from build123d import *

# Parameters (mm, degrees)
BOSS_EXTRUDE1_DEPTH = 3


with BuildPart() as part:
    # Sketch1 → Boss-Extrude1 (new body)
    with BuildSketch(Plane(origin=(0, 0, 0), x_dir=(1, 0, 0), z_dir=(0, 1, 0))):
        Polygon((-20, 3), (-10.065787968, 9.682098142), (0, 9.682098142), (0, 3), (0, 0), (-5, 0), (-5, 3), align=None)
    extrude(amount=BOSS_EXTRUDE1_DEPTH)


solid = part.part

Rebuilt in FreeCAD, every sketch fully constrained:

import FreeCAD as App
import Part
import Sketcher
from FreeCAD import Vector


def add_polygon(sketch, points):
    """Adds a closed chain of lines whose ends are joined by coincident constraints."""
    first, n = sketch.GeometryCount, len(points)
    for a, b in zip(points, points[1:] + points[:1]):
        sketch.addGeometry(Part.LineSegment(App.Vector(*a, 0), App.Vector(*b, 0)), False)
    for i in range(n):
        sketch.addConstraint(Sketcher.Constraint("Coincident", first + i, 2, first + (i + 1) % n, 1))

doc = App.newDocument("Part")
body = doc.addObject("PartDesign::Body", "Body")

# Sketch on XZ plane
sketch1 = doc.addObject("Sketcher::SketchObject", "Sketch")
body.addObject(sketch1)
sketch1.AttachmentSupport = (doc.XZ_Plane, [""])
sketch1.MapMode = "FlatFace"
add_polygon(sketch1, [(-10.065788, -9.682098), (-20, -3), (-5, -3), (-5, 0), (0, 0), (0, -9.682098)])  # lines 0-5
sketch1.addConstraint(Sketcher.Constraint("Horizontal", 1))
sketch1.addConstraint(Sketcher.Constraint("Vertical", 2))
sketch1.addConstraint(Sketcher.Constraint("Horizontal", 3))
sketch1.addConstraint(Sketcher.Constraint("Vertical", 4))
sketch1.addConstraint(Sketcher.Constraint("Horizontal", 5))
sketch1.addConstraint(Sketcher.Constraint("Coincident", 3, 2, -1, 1))
sketch1.addConstraint(Sketcher.Constraint("DistanceX", 1, 1, 1, 2, 15.0))
sketch1.addConstraint(Sketcher.Constraint("DistanceX", 3, 1, 3, 2, 5.0))
sketch1.addConstraint(Sketcher.Constraint("DistanceY", 2, 1, 2, 2, 3.0))
sketch1.addConstraint(Sketcher.Constraint("DistanceY", 4, 2, 4, 1, 9.682098))
sketch1.addConstraint(Sketcher.Constraint("DistanceX", 5, 2, 5, 1, 10.065788))
pad1 = doc.addObject("PartDesign::Pad", "Pad")
body.addObject(pad1)
pad1.Profile = sketch1
pad1.Length = 3
pad1.Reversed = True

doc.recompute()
